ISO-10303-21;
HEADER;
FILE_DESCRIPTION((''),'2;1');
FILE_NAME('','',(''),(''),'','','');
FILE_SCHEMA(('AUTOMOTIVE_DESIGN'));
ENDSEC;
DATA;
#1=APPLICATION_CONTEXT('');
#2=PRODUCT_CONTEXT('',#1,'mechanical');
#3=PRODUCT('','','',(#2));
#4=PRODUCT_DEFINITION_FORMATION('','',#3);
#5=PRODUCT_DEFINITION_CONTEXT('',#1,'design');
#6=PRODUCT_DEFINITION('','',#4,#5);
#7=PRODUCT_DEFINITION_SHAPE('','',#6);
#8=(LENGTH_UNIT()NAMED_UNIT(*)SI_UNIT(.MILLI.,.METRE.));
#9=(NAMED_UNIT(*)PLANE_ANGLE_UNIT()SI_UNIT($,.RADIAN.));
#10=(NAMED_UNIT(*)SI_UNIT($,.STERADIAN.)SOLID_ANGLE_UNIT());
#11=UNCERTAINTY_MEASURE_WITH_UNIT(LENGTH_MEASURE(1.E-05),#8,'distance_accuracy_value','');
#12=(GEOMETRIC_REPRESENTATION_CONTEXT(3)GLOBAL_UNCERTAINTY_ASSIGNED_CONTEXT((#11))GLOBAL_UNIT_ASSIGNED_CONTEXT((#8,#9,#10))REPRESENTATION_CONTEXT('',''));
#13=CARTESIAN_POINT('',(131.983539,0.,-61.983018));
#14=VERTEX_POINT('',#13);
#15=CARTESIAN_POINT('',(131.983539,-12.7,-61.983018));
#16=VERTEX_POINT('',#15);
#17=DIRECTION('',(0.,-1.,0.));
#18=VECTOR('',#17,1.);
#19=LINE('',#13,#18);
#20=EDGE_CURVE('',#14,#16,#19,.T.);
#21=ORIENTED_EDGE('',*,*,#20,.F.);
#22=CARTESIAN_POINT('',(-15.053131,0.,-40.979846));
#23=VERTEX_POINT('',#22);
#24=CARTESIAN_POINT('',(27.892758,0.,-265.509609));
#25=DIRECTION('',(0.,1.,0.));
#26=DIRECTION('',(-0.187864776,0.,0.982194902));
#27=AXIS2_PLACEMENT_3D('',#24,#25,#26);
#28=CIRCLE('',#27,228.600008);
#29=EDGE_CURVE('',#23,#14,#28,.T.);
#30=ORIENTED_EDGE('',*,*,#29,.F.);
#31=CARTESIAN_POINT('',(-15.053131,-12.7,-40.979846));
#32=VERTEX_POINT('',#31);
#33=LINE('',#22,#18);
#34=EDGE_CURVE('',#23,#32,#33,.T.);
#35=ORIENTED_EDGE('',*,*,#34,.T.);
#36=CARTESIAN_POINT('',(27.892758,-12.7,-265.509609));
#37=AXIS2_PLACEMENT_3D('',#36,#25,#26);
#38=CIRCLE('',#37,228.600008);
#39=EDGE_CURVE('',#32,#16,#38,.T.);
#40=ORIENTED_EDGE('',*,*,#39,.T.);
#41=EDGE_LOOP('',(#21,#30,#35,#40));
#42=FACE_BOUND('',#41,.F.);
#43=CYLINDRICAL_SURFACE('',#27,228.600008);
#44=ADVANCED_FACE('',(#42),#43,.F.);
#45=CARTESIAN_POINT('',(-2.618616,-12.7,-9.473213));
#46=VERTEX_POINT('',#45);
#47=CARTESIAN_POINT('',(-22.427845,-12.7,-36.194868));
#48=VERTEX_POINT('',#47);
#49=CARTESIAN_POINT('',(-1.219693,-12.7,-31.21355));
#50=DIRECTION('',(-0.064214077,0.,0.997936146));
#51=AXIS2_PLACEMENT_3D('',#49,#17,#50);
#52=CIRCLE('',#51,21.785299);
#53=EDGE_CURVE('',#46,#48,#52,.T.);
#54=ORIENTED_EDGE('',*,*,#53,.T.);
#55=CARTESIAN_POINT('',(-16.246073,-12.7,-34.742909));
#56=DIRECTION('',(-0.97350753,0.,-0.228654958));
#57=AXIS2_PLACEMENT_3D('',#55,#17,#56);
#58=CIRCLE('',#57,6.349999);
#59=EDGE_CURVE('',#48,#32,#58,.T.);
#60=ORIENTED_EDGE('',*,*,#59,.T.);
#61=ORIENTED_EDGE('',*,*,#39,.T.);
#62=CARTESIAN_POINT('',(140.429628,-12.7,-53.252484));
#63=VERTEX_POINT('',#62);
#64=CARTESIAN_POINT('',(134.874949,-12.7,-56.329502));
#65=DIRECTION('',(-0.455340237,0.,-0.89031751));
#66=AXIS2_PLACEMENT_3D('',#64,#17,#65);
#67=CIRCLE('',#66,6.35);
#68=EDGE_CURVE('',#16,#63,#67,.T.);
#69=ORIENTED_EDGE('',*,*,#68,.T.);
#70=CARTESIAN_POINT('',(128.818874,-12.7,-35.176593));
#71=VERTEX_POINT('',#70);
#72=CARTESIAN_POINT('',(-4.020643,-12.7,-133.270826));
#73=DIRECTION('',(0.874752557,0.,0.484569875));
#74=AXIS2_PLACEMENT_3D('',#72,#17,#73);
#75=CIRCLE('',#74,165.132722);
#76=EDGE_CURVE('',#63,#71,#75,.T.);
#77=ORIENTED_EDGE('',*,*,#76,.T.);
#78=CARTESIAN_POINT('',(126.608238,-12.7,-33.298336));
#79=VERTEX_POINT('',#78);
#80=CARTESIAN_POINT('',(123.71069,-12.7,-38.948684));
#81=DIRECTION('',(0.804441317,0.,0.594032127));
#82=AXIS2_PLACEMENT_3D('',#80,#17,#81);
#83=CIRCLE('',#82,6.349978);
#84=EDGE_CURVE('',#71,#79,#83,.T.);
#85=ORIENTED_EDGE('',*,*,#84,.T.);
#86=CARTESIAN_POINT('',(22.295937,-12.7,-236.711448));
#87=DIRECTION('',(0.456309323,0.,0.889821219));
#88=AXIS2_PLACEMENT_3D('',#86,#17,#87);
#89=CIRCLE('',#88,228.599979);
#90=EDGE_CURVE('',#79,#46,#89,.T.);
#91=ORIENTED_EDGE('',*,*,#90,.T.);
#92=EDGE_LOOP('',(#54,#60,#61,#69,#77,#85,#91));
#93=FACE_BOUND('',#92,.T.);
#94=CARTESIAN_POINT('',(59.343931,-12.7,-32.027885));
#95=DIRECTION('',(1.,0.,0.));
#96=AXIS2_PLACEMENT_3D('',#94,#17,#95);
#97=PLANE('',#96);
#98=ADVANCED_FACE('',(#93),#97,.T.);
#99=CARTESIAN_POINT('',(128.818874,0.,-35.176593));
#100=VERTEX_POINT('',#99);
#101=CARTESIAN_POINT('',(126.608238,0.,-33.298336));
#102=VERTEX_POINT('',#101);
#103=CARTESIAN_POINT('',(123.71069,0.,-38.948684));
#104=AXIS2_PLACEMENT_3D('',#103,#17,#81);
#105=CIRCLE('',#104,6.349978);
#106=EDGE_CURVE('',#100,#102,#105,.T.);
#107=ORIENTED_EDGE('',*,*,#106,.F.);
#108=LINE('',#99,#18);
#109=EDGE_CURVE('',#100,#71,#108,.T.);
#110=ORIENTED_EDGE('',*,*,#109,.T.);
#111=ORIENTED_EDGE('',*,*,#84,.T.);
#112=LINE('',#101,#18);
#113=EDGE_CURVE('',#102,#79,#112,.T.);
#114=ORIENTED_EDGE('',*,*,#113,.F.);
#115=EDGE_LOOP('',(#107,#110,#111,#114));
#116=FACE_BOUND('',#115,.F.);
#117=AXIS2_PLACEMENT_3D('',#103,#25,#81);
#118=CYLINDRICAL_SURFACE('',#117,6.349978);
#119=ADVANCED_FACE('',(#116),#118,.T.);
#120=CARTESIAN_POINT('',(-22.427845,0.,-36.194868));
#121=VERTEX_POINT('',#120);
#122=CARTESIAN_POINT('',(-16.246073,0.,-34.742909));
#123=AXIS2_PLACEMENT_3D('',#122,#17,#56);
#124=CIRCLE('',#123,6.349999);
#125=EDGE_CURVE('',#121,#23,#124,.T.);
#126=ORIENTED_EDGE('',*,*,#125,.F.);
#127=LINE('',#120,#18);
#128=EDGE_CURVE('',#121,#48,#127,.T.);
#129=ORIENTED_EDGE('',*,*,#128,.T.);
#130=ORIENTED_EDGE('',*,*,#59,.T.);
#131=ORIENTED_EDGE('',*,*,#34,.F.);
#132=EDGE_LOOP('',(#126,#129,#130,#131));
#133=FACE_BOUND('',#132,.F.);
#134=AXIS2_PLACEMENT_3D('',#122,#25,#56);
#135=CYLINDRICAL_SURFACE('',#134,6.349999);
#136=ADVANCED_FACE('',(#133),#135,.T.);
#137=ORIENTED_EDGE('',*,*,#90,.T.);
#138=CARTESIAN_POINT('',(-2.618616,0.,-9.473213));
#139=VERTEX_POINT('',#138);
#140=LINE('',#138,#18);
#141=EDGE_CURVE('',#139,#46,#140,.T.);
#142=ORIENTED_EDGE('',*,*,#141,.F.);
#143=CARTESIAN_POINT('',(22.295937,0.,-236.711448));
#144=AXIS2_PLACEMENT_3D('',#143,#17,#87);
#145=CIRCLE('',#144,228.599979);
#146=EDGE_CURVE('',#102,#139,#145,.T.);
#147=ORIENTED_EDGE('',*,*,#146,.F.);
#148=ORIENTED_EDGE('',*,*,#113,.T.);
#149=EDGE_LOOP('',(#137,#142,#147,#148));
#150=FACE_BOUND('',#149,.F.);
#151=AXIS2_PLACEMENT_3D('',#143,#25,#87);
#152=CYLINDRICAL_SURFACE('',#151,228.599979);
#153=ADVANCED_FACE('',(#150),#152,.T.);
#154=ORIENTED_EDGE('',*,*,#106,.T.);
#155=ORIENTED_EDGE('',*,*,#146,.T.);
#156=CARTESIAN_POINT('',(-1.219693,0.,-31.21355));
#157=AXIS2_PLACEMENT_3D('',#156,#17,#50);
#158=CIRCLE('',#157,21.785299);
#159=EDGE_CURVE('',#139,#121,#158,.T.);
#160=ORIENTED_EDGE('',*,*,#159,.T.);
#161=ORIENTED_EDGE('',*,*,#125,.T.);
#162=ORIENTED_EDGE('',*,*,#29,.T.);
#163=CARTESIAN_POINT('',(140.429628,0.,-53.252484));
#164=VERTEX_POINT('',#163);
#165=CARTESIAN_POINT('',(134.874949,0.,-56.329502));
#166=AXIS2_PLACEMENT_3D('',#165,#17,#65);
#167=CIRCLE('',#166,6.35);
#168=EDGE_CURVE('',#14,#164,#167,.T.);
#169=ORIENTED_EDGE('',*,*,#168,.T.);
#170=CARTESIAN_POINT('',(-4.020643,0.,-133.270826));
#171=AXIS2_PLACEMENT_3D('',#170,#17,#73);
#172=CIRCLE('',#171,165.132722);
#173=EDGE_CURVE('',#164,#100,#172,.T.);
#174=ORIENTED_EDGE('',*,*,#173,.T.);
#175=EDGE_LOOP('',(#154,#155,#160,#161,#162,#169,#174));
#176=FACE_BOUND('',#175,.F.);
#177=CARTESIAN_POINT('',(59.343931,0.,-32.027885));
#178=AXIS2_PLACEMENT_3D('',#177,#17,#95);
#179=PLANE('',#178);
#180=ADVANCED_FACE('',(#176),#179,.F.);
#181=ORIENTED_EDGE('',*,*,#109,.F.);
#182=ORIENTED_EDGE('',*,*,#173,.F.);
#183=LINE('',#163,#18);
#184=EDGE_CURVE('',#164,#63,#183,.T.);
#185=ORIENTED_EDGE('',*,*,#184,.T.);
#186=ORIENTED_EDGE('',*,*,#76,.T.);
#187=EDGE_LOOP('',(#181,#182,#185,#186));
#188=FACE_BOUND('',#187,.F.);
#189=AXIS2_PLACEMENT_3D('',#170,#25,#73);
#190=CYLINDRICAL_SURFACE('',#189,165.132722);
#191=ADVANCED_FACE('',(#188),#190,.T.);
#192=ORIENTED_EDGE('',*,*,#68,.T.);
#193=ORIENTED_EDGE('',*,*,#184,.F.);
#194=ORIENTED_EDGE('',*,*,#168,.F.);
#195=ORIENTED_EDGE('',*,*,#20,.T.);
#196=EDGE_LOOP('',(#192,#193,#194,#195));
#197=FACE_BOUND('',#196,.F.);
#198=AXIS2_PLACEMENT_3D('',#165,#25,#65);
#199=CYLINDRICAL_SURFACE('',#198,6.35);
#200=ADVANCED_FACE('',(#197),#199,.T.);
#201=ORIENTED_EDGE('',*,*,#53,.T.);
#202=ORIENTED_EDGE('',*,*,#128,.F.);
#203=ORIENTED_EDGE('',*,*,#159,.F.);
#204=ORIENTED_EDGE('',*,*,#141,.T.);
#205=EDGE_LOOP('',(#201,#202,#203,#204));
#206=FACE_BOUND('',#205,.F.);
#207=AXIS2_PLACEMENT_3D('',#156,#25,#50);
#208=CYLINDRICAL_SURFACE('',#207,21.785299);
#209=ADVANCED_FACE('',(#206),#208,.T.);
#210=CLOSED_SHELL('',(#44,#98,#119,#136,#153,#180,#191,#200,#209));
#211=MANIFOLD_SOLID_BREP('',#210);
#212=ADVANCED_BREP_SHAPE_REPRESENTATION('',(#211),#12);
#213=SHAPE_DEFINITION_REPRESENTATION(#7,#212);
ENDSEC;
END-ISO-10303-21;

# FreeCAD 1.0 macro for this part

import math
import FreeCAD as App
import Part
import Sketcher
from FreeCAD import Vector
Q = App.Units.Quantity

doc = App.newDocument("Part")
body = doc.addObject("PartDesign::Body", "Body")

# Sketch on XZ plane
sketch1 = body.newObject("Sketcher::SketchObject", "Sketch")
sketch1.AttachmentSupport = (doc.getObject("XZ_Plane"), [""])
sketch1.MapMode = "FlatFace"
sketch1.addGeometry([
    Part.ArcOfCircle(Part.Circle(Vector(22.295937, -236.711448, 0), Vector(0, 0, 1), 228.599979), math.radians(62.85079), math.radians(96.256956)),  # 0
    Part.ArcOfCircle(Part.Circle(Vector(-1.219693, -31.21355, 0), Vector(0, 0, 1), 21.785299), math.radians(93.681729), math.radians(193.217901)),  # 1
    Part.ArcOfCircle(Part.Circle(Vector(-16.246073, -34.742909, 0), Vector(0, 0, 1), 6.349999), math.radians(-166.782104), math.radians(-79.171793)),  # 2
    Part.ArcOfCircle(Part.Circle(Vector(27.892758, -265.509609, 0), Vector(0, 0, 1), 228.600008), math.radians(62.913173), math.radians(100.828201)),  # 3
    Part.ArcOfCircle(Part.Circle(Vector(134.874949, -56.329502, 0), Vector(0, 0, 1), 6.35), math.radians(-117.086828), math.radians(28.984291)),  # 4
    Part.ArcOfCircle(Part.Circle(Vector(-4.020643, -133.270826, 0), Vector(0, 0, 1), 165.132722), math.radians(28.984296), math.radians(36.443705)),  # 5
    Part.ArcOfCircle(Part.Circle(Vector(123.71069, -38.948684, 0), Vector(0, 0, 1), 6.349978), math.radians(36.443665), math.radians(62.850847)),  # 6
], False)
sketch1.addConstraint([
    Sketcher.Constraint("Coincident", 0, 2, 1, 1),
    Sketcher.Constraint("Coincident", 1, 2, 2, 1),
    Sketcher.Constraint("Coincident", 2, 2, 3, 2),
    Sketcher.Constraint("Coincident", 3, 1, 4, 1),
    Sketcher.Constraint("Coincident", 4, 2, 5, 1),
    Sketcher.Constraint("Coincident", 5, 2, 6, 1),
    Sketcher.Constraint("Coincident", 6, 2, 0, 1),
    Sketcher.Constraint("Radius", 2, Q("0.25 in")),
    Sketcher.Constraint("Radius", 4, Q("0.25 in")),
    Sketcher.Constraint("Radius", 1, 21.785299),
    Sketcher.Constraint("Radius", 0, 228.599979),
    Sketcher.Constraint("Radius", 3, 228.600008),
    Sketcher.Constraint("Radius", 5, 165.132722),
    Sketcher.Constraint("Radius", 6, 6.349978),
    Sketcher.Constraint("DistanceY", 2, 2, 1, 3, Q("0.3844998 in")),
    Sketcher.Constraint("DistanceY", 3, 3, 2, 3, 230.7667),
    Sketcher.Constraint("DistanceX", 5, 3, 3, 3, 31.913401),
    Sketcher.Constraint("DistanceY", 4, 2, 6, 3, 14.3038),
    Sketcher.Constraint("DistanceX", 6, 2, 3, 1, 5.375301),
    Sketcher.Constraint("DistanceY", 1, 3, -1, 1, 31.21355),
    Sketcher.Constraint("DistanceY", 2, 3, -1, 1, 34.742909),
    Sketcher.Constraint("DistanceX", -1, 1, 3, 3, 27.892758),
    Sketcher.Constraint("DistanceX", -1, 1, 4, 3, 134.874949),
    Sketcher.Constraint("DistanceX", -1, 1, 6, 3, 123.71069),
    Sketcher.Constraint("DistanceY", 1, 2, -1, 1, 36.194868),
    Sketcher.Constraint("DistanceX", -1, 1, 3, 1, 131.983539),
    Sketcher.Constraint("DistanceX", 1, 3, 0, 3, 23.51563),
    Sketcher.Constraint("DistanceY", 6, 3, 5, 2, 3.772091),
])
pad1 = body.newObject("PartDesign::Pad", "Pad")
pad1.Profile = sketch1
pad1.Length = Q("0.5 in")

doc.recompute()
